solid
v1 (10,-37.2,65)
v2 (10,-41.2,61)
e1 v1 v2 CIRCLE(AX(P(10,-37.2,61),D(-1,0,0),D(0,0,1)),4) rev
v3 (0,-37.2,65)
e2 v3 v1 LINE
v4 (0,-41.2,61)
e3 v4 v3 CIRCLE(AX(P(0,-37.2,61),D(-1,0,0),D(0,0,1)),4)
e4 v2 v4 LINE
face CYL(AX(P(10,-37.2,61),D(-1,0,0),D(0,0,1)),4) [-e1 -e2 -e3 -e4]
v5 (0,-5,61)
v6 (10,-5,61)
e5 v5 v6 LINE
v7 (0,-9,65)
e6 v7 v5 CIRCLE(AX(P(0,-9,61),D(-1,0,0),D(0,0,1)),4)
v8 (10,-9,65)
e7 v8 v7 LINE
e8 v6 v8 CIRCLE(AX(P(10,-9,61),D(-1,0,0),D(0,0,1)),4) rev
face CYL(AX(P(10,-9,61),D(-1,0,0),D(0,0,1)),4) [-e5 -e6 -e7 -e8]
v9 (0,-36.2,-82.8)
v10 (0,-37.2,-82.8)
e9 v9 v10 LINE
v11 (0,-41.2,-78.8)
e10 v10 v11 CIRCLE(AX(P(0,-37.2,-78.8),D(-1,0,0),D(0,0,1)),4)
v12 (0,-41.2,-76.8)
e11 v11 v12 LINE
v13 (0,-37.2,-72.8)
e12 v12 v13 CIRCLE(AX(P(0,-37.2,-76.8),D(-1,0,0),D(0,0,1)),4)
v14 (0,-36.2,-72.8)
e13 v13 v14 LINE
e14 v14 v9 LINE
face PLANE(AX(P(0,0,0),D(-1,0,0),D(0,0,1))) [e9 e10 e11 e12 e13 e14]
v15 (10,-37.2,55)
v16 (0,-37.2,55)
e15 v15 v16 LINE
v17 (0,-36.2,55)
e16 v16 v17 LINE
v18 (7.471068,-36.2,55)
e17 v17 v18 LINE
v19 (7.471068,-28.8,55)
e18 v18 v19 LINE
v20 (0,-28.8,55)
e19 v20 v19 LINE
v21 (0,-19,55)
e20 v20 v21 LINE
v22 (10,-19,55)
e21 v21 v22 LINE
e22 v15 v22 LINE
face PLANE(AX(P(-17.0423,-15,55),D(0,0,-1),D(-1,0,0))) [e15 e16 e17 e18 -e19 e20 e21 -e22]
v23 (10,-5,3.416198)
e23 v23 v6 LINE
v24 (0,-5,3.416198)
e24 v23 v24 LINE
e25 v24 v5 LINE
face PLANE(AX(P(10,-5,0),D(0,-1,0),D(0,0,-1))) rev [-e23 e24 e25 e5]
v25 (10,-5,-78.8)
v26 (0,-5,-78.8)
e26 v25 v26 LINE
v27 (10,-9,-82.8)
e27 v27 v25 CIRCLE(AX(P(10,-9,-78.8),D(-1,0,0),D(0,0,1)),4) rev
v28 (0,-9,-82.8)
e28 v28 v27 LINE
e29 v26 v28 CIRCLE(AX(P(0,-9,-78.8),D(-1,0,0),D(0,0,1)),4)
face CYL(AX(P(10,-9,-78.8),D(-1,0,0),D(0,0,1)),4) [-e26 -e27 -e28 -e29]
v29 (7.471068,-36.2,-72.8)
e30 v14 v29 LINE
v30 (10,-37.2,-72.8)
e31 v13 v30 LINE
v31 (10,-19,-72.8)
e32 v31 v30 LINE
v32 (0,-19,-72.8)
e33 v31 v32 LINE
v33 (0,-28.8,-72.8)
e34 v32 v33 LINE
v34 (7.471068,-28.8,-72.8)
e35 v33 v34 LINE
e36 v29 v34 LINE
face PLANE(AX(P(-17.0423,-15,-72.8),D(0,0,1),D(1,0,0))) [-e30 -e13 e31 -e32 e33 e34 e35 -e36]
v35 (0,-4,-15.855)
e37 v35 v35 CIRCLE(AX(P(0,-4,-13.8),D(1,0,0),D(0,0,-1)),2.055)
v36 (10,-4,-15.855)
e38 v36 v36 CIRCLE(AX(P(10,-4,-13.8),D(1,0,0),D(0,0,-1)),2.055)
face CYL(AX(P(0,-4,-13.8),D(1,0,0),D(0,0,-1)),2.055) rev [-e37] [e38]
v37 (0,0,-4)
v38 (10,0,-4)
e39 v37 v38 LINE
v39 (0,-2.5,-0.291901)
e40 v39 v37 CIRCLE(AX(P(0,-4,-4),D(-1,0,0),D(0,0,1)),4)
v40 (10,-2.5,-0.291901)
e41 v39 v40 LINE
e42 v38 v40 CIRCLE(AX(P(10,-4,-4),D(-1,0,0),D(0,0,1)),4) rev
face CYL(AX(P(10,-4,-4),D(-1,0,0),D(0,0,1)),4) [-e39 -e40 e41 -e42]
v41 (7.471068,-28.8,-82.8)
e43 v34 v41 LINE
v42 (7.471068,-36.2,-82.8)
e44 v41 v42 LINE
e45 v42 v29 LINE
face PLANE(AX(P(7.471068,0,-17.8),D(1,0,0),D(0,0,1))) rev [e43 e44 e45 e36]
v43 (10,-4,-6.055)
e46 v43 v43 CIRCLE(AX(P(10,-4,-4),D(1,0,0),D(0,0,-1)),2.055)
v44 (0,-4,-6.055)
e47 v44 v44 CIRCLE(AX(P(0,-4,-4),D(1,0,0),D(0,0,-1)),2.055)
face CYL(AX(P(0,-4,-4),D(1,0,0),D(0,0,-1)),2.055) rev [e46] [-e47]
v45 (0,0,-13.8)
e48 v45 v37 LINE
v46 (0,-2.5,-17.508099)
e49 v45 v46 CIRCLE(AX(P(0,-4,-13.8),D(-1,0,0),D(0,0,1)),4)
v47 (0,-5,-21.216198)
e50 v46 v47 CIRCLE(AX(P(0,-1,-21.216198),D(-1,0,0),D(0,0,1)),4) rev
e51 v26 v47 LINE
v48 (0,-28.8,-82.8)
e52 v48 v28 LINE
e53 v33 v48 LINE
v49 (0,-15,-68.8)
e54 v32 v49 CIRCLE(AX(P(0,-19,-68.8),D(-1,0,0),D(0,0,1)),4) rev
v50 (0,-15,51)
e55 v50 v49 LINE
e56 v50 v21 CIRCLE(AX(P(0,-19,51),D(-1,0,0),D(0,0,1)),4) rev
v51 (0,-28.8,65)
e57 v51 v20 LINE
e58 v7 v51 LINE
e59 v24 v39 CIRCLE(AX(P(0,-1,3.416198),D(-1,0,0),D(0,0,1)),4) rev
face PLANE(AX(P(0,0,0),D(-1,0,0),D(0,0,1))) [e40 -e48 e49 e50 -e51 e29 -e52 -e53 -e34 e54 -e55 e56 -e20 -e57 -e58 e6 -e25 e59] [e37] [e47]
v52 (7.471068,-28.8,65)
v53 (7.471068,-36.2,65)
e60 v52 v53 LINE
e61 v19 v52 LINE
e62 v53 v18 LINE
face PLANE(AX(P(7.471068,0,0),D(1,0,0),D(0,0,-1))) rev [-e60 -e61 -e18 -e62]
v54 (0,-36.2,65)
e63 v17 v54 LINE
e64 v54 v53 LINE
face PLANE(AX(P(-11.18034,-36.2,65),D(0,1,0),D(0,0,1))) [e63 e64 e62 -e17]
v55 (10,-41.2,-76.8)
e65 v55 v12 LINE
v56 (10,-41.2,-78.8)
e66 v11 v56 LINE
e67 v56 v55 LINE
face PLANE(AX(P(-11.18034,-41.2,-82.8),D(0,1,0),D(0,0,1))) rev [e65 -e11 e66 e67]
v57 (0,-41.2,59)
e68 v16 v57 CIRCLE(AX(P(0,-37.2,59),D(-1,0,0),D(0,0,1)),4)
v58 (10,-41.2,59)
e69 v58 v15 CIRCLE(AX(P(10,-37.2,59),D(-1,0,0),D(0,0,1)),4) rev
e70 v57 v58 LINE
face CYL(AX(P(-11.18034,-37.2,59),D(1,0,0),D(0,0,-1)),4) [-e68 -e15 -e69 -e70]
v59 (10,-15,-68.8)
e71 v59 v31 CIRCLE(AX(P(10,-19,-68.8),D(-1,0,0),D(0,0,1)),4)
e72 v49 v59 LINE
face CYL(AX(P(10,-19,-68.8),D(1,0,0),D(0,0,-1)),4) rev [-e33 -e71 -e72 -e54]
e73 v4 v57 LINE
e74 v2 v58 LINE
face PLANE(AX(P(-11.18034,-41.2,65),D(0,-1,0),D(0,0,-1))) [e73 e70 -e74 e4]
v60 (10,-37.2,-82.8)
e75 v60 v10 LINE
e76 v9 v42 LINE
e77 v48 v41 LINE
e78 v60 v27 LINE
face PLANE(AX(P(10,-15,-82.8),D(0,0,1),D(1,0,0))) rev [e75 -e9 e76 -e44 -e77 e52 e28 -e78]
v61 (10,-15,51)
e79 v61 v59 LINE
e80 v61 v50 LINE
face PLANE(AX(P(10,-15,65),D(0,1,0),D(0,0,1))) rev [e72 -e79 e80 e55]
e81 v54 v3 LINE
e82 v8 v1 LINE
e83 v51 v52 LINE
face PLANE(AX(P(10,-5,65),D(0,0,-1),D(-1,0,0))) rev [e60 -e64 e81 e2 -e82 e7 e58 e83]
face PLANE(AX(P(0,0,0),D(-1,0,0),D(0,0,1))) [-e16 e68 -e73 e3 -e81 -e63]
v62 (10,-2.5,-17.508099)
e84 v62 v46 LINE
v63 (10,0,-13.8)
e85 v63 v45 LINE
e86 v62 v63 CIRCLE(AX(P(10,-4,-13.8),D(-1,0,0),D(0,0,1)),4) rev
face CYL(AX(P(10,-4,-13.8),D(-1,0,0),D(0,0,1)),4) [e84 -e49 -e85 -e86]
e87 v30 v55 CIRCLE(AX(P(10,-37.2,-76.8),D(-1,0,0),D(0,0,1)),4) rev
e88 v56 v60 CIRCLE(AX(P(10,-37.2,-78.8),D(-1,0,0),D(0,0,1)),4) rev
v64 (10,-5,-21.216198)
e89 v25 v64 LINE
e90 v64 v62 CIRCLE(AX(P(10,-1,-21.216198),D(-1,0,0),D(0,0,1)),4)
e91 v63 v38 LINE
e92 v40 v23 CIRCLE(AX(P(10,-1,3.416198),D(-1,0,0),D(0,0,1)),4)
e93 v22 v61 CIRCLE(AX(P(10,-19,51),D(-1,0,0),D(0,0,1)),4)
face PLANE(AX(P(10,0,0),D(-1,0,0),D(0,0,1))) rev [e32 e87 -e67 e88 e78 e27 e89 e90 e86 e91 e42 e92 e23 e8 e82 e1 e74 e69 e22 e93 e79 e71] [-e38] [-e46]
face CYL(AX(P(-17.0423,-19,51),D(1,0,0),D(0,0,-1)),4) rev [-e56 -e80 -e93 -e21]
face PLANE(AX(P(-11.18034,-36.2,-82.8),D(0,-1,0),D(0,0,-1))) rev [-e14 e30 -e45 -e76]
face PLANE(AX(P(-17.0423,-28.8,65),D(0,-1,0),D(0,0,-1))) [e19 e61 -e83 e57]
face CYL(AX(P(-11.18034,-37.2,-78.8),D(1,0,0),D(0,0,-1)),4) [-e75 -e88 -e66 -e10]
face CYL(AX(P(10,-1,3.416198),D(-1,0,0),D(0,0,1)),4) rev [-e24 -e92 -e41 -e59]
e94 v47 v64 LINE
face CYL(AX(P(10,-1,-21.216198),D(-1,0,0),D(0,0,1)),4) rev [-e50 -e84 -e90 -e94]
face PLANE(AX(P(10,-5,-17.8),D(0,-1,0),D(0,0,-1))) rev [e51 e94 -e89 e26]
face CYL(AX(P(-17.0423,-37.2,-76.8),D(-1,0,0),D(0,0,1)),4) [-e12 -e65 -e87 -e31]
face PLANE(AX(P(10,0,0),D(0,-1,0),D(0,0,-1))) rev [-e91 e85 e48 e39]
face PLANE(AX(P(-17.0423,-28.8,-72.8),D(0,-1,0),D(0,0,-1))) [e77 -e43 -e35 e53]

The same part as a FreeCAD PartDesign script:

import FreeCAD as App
import Part
import Sketcher
from FreeCAD import Vector


def edges_at(feature, points):
    """Names of the edges that pass closest to the given points."""
    edges = feature.Shape.Edges
    near = lambda p: min(range(len(edges)), key=lambda i: edges[i].distToShape(Part.Vertex(*p))[0])
    return sorted({f"Edge{near(p) + 1}" for p in points})

doc = App.newDocument("Part")
body = doc.addObject("PartDesign::Body", "Body")

# Sketch on YZ plane
sketch1 = body.newObject("Sketcher::SketchObject", "Sketch")
sketch1.AttachmentSupport = (doc.getObject("YZ_Plane"), [""])
sketch1.MapMode = "FlatFace"
sketch1.addGeometry(Part.LineSegment(Vector(-5, -83, 0), Vector(-5, -18, 0)), False)
sketch1.addGeometry(Part.LineSegment(Vector(-5, -18, 0), Vector(0, -18, 0)), False)
sketch1.addGeometry(Part.LineSegment(Vector(0, -18, 0), Vector(0, 0, 0)), False)
sketch1.addGeometry(Part.LineSegment(Vector(0, 0, 0), Vector(-5, 0, 0)), False)
sketch1.addGeometry(Part.LineSegment(Vector(-5, 0, 0), Vector(-5, 65, 0)), False)
sketch1.addGeometry(Part.LineSegment(Vector(-5, 65, 0), Vector(-15, 65, 0)), False)
sketch1.addGeometry(Part.LineSegment(Vector(-15, 65, 0), Vector(-15, -83, 0)), False)
sketch1.addGeometry(Part.LineSegment(Vector(-15, -83, 0), Vector(-5, -83, 0)), False)
sketch1.addConstraint(Sketcher.Constraint("Coincident", 0, 2, 1, 1))
sketch1.addConstraint(Sketcher.Constraint("Coincident", 1, 2, 2, 1))
sketch1.addConstraint(Sketcher.Constraint("Coincident", 2, 2, 3, 1))
sketch1.addConstraint(Sketcher.Constraint("Coincident", 3, 2, 4, 1))
sketch1.addConstraint(Sketcher.Constraint("Coincident", 4, 2, 5, 1))
sketch1.addConstraint(Sketcher.Constraint("Coincident", 5, 2, 6, 1))
sketch1.addConstraint(Sketcher.Constraint("Coincident", 6, 2, 7, 1))
sketch1.addConstraint(Sketcher.Constraint("Coincident", 7, 2, 0, 1))
sketch1.addConstraint(Sketcher.Constraint("Vertical", 0))
sketch1.addConstraint(Sketcher.Constraint("Horizontal", 1))
sketch1.addConstraint(Sketcher.Constraint("Vertical", 2))
sketch1.addConstraint(Sketcher.Constraint("Horizontal", 3))
sketch1.addConstraint(Sketcher.Constraint("Vertical", 4))
sketch1.addConstraint(Sketcher.Constraint("Horizontal", 5))
sketch1.addConstraint(Sketcher.Constraint("Vertical", 6))
sketch1.addConstraint(Sketcher.Constraint("Horizontal", 7))
sketch1.addConstraint(Sketcher.Constraint("Coincident", 2, 2, -1, 1))
sketch1.addConstraint(Sketcher.Constraint("Vertical", 0, 2, 3, 2))
sketch1.addConstraint(Sketcher.Constraint("Equal", 0, 4))
sketch1.addConstraint(Sketcher.Constraint("DistanceX", 1, 1, 1, 2, 5.0))
sketch1.addConstraint(Sketcher.Constraint("DistanceX", 5, 2, 5, 1, 10.0))
sketch1.addConstraint(Sketcher.Constraint("DistanceY", 0, 1, 0, 2, 65.0))
sketch1.addConstraint(Sketcher.Constraint("DistanceY", 2, 1, 2, 2, 17.8))
pad1 = body.newObject("PartDesign::Pad", "Pad")
pad1.Profile = sketch1
pad1.Length = 10

# Sketch on YZ plane
sketch2 = body.newObject("Sketcher::SketchObject", "Sketch001")
sketch2.AttachmentSupport = (doc.getObject("YZ_Plane"), [""])
sketch2.MapMode = "FlatFace"
sketch2.AttachmentOffset = App.Placement(Vector(0, 0, 10), App.Rotation())
sketch2.addGeometry(Part.Circle(Vector(-4, -4, 0), Vector(0, 0, 1), 2.1), False)
sketch2.addGeometry(Part.Circle(Vector(-4, -13.8, 0), Vector(0, 0, 1), 2.1), False)
sketch2.addConstraint(Sketcher.Constraint("Equal", 0, 1))
sketch2.addConstraint(Sketcher.Constraint("Vertical", 0, 3, 1, 3))
sketch2.addConstraint(Sketcher.Constraint("Diameter", 0, 4.11))
sketch2.addConstraint(Sketcher.Constraint("DistanceX", 0, 3, -1, 1, 4.0))
sketch2.addConstraint(Sketcher.Constraint("DistanceY", 0, 3, -1, 1, 4.0))
sketch2.addConstraint(Sketcher.Constraint("DistanceY", 1, 3, -1, 1, 13.8))
pocket1 = body.newObject("PartDesign::Pocket", "Pocket")
pocket1.Profile = sketch2
pocket1.Type = "ThroughAll"

# Sketch on YZ plane
sketch3 = body.newObject("Sketcher::SketchObject", "Sketch002")
sketch3.AttachmentSupport = (doc.getObject("YZ_Plane"), [""])
sketch3.MapMode = "FlatFace"
sketch3.AttachmentOffset = App.Placement(Vector(0, 0, 10), App.Rotation())
sketch3.addGeometry(Part.LineSegment(Vector(-15, 65, 0), Vector(-29, 65, 0)), False)
sketch3.addGeometry(Part.LineSegment(Vector(-29, 65, 0), Vector(-29, 55, 0)), False)
sketch3.addGeometry(Part.LineSegment(Vector(-29, 55, 0), Vector(-15, 55, 0)), False)
sketch3.addGeometry(Part.LineSegment(Vector(-15, 55, 0), Vector(-15, 65, 0)), False)
sketch3.addGeometry(Part.LineSegment(Vector(-15, -73, 0), Vector(-29, -73, 0)), False)
sketch3.addGeometry(Part.LineSegment(Vector(-29, -73, 0), Vector(-29, -83, 0)), False)
sketch3.addGeometry(Part.LineSegment(Vector(-29, -83, 0), Vector(-15, -83, 0)), False)
sketch3.addGeometry(Part.LineSegment(Vector(-15, -83, 0), Vector(-15, -73, 0)), False)
sketch3.addConstraint(Sketcher.Constraint("Coincident", 0, 2, 1, 1))
sketch3.addConstraint(Sketcher.Constraint("Coincident", 1, 2, 2, 1))
sketch3.addConstraint(Sketcher.Constraint("Coincident", 2, 2, 3, 1))
sketch3.addConstraint(Sketcher.Constraint("Coincident", 3, 2, 0, 1))
sketch3.addConstraint(Sketcher.Constraint("Coincident", 4, 2, 5, 1))
sketch3.addConstraint(Sketcher.Constraint("Coincident", 5, 2, 6, 1))
sketch3.addConstraint(Sketcher.Constraint("Coincident", 6, 2, 7, 1))
sketch3.addConstraint(Sketcher.Constraint("Coincident", 7, 2, 4, 1))
sketch3.addConstraint(Sketcher.Constraint("Horizontal", 0))
sketch3.addConstraint(Sketcher.Constraint("Vertical", 1))
sketch3.addConstraint(Sketcher.Constraint("Horizontal", 2))
sketch3.addConstraint(Sketcher.Constraint("Vertical", 3))
sketch3.addConstraint(Sketcher.Constraint("Horizontal", 4))
sketch3.addConstraint(Sketcher.Constraint("Vertical", 5))
sketch3.addConstraint(Sketcher.Constraint("Horizontal", 6))
sketch3.addConstraint(Sketcher.Constraint("Vertical", 7))
sketch3.addConstraint(Sketcher.Constraint("Vertical", 1, 2, 4, 2))
sketch3.addConstraint(Sketcher.Constraint("Vertical", 3, 2, 6, 2))
sketch3.addConstraint(Sketcher.Constraint("Equal", 3, 5))
sketch3.addConstraint(Sketcher.Constraint("DistanceY", 1, 2, 1, 1, 10.0))
sketch3.addConstraint(Sketcher.Constraint("DistanceX", 0, 2, 0, 1, 13.8))
sketch3.addConstraint(Sketcher.Constraint("DistanceY", -1, 1, 0, 2, 65.0))
sketch3.addConstraint(Sketcher.Constraint("DistanceX", 2, 2, -1, 1, 15.0))
sketch3.addConstraint(Sketcher.Constraint("DistanceY", 4, 2, -1, 1, 72.8))
pad2 = body.newObject("PartDesign::Pad", "Pad001")
pad2.Profile = sketch3
pad2.Length = 10
pad2.Reversed = True

# Sketch on YZ plane
sketch4 = body.newObject("Sketcher::SketchObject", "Sketch003")
sketch4.AttachmentSupport = (doc.getObject("YZ_Plane"), [""])
sketch4.MapMode = "FlatFace"
sketch4.AttachmentOffset = App.Placement(Vector(0, 0, 10), App.Rotation())
sketch4.addGeometry(Part.LineSegment(Vector(-29, 65, 0), Vector(-36, 65, 0)), False)
sketch4.addGeometry(Part.LineSegment(Vector(-36, 65, 0), Vector(-36, 55, 0)), False)
sketch4.addGeometry(Part.LineSegment(Vector(-36, 55, 0), Vector(-29, 55, 0)), False)
sketch4.addGeometry(Part.LineSegment(Vector(-29, 55, 0), Vector(-29, 65, 0)), False)
sketch4.addConstraint(Sketcher.Constraint("Coincident", 0, 2, 1, 1))
sketch4.addConstraint(Sketcher.Constraint("Coincident", 1, 2, 2, 1))
sketch4.addConstraint(Sketcher.Constraint("Coincident", 2, 2, 3, 1))
sketch4.addConstraint(Sketcher.Constraint("Coincident", 3, 2, 0, 1))
sketch4.addConstraint(Sketcher.Constraint("Horizontal", 0))
sketch4.addConstraint(Sketcher.Constraint("Vertical", 1))
sketch4.addConstraint(Sketcher.Constraint("Horizontal", 2))
sketch4.addConstraint(Sketcher.Constraint("Vertical", 3))
sketch4.addConstraint(Sketcher.Constraint("DistanceY", 1, 2, 1, 1, 10.0))
sketch4.addConstraint(Sketcher.Constraint("DistanceX", 0, 2, 0, 1, 7.4))
sketch4.addConstraint(Sketcher.Constraint("DistanceY", -1, 1, 0, 2, 65.0))
sketch4.addConstraint(Sketcher.Constraint("DistanceX", 0, 2, -1, 1, 36.2))
pad3 = body.newObject("PartDesign::Pad", "Pad002")
pad3.Profile = sketch4
pad3.Length = 2.528932
pad3.Reversed = True

# Sketch on YZ plane
sketch5 = body.newObject("Sketcher::SketchObject", "Sketch004")
sketch5.AttachmentSupport = (doc.getObject("YZ_Plane"), [""])
sketch5.MapMode = "FlatFace"
sketch5.AttachmentOffset = App.Placement(Vector(0, 0, 10), App.Rotation())
sketch5.addGeometry(Part.LineSegment(Vector(-36, 65, 0), Vector(-41, 65, 0)), False)
sketch5.addGeometry(Part.LineSegment(Vector(-41, 65, 0), Vector(-41, 55, 0)), False)
sketch5.addGeometry(Part.LineSegment(Vector(-41, 55, 0), Vector(-36, 55, 0)), False)
sketch5.addGeometry(Part.LineSegment(Vector(-36, 55, 0), Vector(-36, 65, 0)), False)
sketch5.addConstraint(Sketcher.Constraint("Coincident", 0, 2, 1, 1))
sketch5.addConstraint(Sketcher.Constraint("Coincident", 1, 2, 2, 1))
sketch5.addConstraint(Sketcher.Constraint("Coincident", 2, 2, 3, 1))
sketch5.addConstraint(Sketcher.Constraint("Coincident", 3, 2, 0, 1))
sketch5.addConstraint(Sketcher.Constraint("Horizontal", 0))
sketch5.addConstraint(Sketcher.Constraint("Vertical", 1))
sketch5.addConstraint(Sketcher.Constraint("Horizontal", 2))
sketch5.addConstraint(Sketcher.Constraint("Vertical", 3))
sketch5.addConstraint(Sketcher.Constraint("DistanceX", 0, 2, 0, 1, 5.0))
sketch5.addConstraint(Sketcher.Constraint("DistanceY", 1, 2, 1, 1, 10.0))
sketch5.addConstraint(Sketcher.Constraint("DistanceY", -1, 1, 0, 2, 65.0))
sketch5.addConstraint(Sketcher.Constraint("DistanceX", 0, 2, -1, 1, 41.2))
pad4 = body.newObject("PartDesign::Pad", "Pad003")
pad4.Profile = sketch5
pad4.Length = 10
pad4.Reversed = True
doc.recompute()

datumplane = body.newObject("PartDesign::Plane", "DatumPlane")
datumplane.AttachmentSupport = (doc.getObject("XY_Plane"), [""])
datumplane.MapMode = "FlatFace"
datumplane.AttachmentOffset = App.Placement(Vector(0, 0, -8.9), App.Rotation())
mirrored = body.newObject("PartDesign::Mirrored", "Mirrored")
mirrored.Originals = [pad3, pad4]
mirrored.MirrorPlane = (datumplane, [""])
body.Tip = mirrored
doc.recompute()

fillet = body.newObject("PartDesign::Fillet", "Fillet")
fillet.Base = (mirrored, edges_at(mirrored, [(5, 0, 0), (5, 0, -17.8)]))
fillet.Radius = 4
doc.recompute()

fillet2 = body.newObject("PartDesign::Fillet", "Fillet001")
fillet2.Base = (fillet, edges_at(fillet, [
    (5, -5, -82.8),
    (5, -5, 65),
    (5, -15, 55),
    (5, -15, -72.8),
    (5, -41.2, 55),
    (5, -41.2, 65),
    (5, -41.2, -82.8),
    (5, -41.2, -72.8),
]))
fillet2.Radius = 4
doc.recompute()

fillet3 = body.newObject("PartDesign::Fillet", "Fillet002")
fillet3.Base = (fillet2, edges_at(fillet2, [(5, -5, -17.8), (5, -5, 0)]))
fillet3.Radius = 4

doc.recompute()
